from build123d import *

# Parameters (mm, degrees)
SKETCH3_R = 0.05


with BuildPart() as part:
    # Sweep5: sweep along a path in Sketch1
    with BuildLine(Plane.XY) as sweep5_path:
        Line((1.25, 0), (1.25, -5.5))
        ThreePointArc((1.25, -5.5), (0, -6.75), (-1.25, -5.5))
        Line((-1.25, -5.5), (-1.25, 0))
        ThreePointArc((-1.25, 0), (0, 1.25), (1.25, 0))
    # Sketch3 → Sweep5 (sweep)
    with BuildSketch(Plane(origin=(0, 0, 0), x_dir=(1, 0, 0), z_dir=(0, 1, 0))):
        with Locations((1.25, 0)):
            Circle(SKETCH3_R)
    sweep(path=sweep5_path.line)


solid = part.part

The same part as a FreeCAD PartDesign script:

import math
import FreeCAD as App
import Part
import Sketcher
Q = App.Units.Quantity

doc = App.newDocument("Part")
body = doc.addObject("PartDesign::Body", "Body")

sketch1 = doc.addObject("Sketcher::SketchObject", "Sketch")
body.addObject(sketch1)
sketch1.AttachmentSupport = (doc.XZ_Plane, [""])
sketch1.MapMode = "FlatFace"
sketch1.addGeometry(Part.Circle(App.Vector(1.25, 0, 0), App.Vector(0, 0, 1), 0.05), False)
sketch1.addConstraint(Sketcher.Constraint("PointOnObject", 0, 3, -1))
sketch1.addConstraint(Sketcher.Constraint("Diameter", 0, Q("0.1 mm")))
sketch1.addConstraint(Sketcher.Constraint("DistanceX", -1, 1, 0, 3, Q("1.25 mm")))

sketch2 = doc.addObject("Sketcher::SketchObject", "Sketch001")
body.addObject(sketch2)
sketch2.AttachmentSupport = (doc.XY_Plane, [""])
sketch2.MapMode = "FlatFace"
sketch2.addGeometry(Part.LineSegment(App.Vector(1.2, 0, 0), App.Vector(1.2, -5.5, 0)), False)
sketch2.addGeometry(Part.ArcOfCircle(Part.Circle(App.Vector(0, -5.5, 0), App.Vector(0, 0, 1), 1.2), math.radians(180), math.radians(360)), False)
sketch2.addGeometry(Part.LineSegment(App.Vector(-1.2, -5.5, 0), App.Vector(-1.2, 0, 0)), False)
sketch2.addGeometry(Part.ArcOfCircle(Part.Circle(App.Vector(0, 0, 0), App.Vector(0, 0, 1), 1.2), math.radians(0), math.radians(180)), False)
sketch2.addConstraint(Sketcher.Constraint("Tangent", 0, 2, 1, 2))
sketch2.addConstraint(Sketcher.Constraint("Tangent", 1, 1, 2, 1))
sketch2.addConstraint(Sketcher.Constraint("Tangent", 2, 2, 3, 2))
sketch2.addConstraint(Sketcher.Constraint("Tangent", 3, 1, 0, 1))
sketch2.addConstraint(Sketcher.Constraint("Vertical", 0))
sketch2.addConstraint(Sketcher.Constraint("Vertical", 2))
sketch2.addConstraint(Sketcher.Constraint("Coincident", 3, 3, -1, 1))
sketch2.addConstraint(Sketcher.Constraint("Radius", 1, Q("1.25 mm")))
sketch2.addConstraint(Sketcher.Constraint("DistanceY", 0, 2, 0, 1, Q("5.5 mm")))
doc.recompute()

additivepipe = doc.addObject("PartDesign::AdditivePipe", "AdditivePipe")
body.addObject(additivepipe)
additivepipe.Profile = sketch1
additivepipe.Spine = (sketch2, ["Edge1", "Edge2", "Edge3", "Edge4"])

doc.recompute()
